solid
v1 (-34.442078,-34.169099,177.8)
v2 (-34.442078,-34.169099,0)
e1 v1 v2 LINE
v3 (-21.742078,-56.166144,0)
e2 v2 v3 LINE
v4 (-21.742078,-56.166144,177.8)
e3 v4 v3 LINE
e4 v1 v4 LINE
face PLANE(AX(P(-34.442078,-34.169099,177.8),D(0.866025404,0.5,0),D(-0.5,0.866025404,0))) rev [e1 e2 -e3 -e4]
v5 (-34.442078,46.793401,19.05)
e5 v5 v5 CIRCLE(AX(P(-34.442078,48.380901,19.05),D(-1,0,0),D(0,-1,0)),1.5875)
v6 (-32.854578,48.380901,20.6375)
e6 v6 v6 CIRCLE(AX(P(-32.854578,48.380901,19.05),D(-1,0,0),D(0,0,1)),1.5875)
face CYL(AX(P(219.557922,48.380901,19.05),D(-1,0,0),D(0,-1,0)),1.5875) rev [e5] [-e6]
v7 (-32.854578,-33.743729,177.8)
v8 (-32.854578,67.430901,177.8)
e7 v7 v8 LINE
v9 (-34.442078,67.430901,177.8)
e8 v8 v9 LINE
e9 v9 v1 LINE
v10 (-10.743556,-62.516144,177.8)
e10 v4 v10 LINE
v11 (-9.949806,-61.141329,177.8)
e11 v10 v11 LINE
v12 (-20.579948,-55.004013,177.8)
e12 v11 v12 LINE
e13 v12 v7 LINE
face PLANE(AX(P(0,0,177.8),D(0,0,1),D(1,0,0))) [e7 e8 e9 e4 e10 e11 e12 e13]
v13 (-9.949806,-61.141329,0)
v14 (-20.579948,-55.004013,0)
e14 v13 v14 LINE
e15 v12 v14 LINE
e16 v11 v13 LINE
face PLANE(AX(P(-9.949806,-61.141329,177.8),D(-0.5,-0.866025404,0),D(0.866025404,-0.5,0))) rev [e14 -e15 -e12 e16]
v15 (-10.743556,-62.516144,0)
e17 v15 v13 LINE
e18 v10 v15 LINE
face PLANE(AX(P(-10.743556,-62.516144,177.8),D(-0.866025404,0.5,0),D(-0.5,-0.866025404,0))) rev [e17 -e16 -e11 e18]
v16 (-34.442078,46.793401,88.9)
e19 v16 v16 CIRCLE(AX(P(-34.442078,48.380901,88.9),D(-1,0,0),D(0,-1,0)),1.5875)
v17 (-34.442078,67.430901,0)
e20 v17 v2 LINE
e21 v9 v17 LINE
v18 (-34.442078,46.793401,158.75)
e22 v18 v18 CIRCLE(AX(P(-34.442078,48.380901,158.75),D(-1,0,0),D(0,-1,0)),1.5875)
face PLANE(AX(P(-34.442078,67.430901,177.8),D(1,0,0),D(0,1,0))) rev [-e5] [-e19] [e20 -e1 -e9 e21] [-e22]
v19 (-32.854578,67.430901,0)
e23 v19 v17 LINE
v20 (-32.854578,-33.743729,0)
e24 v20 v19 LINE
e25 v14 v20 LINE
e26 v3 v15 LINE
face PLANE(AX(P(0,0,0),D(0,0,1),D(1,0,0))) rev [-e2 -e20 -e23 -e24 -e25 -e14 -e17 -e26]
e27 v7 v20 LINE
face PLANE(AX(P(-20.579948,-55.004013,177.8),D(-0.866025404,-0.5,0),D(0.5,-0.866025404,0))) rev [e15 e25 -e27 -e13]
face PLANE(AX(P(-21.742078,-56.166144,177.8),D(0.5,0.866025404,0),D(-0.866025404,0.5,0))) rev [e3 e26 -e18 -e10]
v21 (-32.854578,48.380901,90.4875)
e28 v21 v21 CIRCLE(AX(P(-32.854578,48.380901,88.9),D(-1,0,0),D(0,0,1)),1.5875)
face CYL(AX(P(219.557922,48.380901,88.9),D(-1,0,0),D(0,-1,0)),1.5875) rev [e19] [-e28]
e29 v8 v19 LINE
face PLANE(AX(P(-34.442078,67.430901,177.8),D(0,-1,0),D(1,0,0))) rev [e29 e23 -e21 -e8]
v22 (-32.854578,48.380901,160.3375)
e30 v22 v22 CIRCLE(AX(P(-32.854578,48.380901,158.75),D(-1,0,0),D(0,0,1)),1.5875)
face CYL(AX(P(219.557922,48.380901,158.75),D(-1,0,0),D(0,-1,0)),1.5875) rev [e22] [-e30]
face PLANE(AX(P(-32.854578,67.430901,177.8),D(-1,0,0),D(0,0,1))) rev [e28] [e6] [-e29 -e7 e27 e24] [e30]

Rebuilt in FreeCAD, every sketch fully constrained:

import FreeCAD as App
import Part
import Sketcher
from FreeCAD import Vector
Q = App.Units.Quantity

doc = App.newDocument("Part")
body = doc.addObject("PartDesign::Body", "Body")

sketch1 = body.newObject("Sketcher::SketchObject", "Sketch")
sketch1.AttachmentSupport = (doc.getObject("XY_Plane"), [""])
sketch1.MapMode = "FlatFace"
sketch1.addGeometry([
    Part.LineSegment(Vector(-34.4, -34.2, 0), Vector(-21.7, -56.2, 0)),
    Part.LineSegment(Vector(-21.7, -56.2, 0), Vector(-10.7, -62.5, 0)),
    Part.LineSegment(Vector(-10.7, -62.5, 0), Vector(-9.9, -61.1, 0)),
    Part.LineSegment(Vector(-9.9, -61.1, 0), Vector(-20.6, -55, 0)),
    Part.LineSegment(Vector(-20.6, -55, 0), Vector(-32.9, -33.7, 0)),
    Part.LineSegment(Vector(-32.9, -33.7, 0), Vector(-32.9, 67.4, 0)),
    Part.LineSegment(Vector(-32.9, 67.4, 0), Vector(-34.4, 67.4, 0)),
    Part.LineSegment(Vector(-34.4, 67.4, 0), Vector(-34.4, -34.2, 0)),
], False)
sketch1.addConstraint([
    Sketcher.Constraint("Coincident", 0, 2, 1, 1),
    Sketcher.Constraint("Coincident", 1, 2, 2, 1),
    Sketcher.Constraint("Coincident", 2, 2, 3, 1),
    Sketcher.Constraint("Coincident", 3, 2, 4, 1),
    Sketcher.Constraint("Coincident", 4, 2, 5, 1),
    Sketcher.Constraint("Coincident", 5, 2, 6, 1),
    Sketcher.Constraint("Coincident", 6, 2, 7, 1),
    Sketcher.Constraint("Coincident", 7, 2, 0, 1),
    Sketcher.Constraint("Vertical", 5),
    Sketcher.Constraint("Horizontal", 6),
    Sketcher.Constraint("Vertical", 7),
    Sketcher.Constraint("Perpendicular", 1, 2),
    Sketcher.Constraint("Perpendicular", 2, 3),
    Sketcher.Constraint("Parallel", 0, 4),
    Sketcher.Constraint("DistanceY", 7, 2, 7, 1, Q("4 in")),
    Sketcher.Constraint("Distance", 0, Q("1 in")),
    Sketcher.Constraint("Angle", 0, Q("-60 deg")),
    Sketcher.Constraint("Angle", 1, Q("-30 deg")),
    Sketcher.Constraint("Distance", 1, Q("0.5 in")),
    Sketcher.Constraint("DistanceX", 6, 2, 6, 1, Q("0.0625 in")),
    Sketcher.Constraint("Distance", 2, Q("0.0625 in")),
    Sketcher.Constraint("DistanceY", 5, 1, 5, 2, Q("101.174631 mm")),
    Sketcher.Constraint("DistanceY", -1, 1, 5, 2, Q("67.430901 mm")),
    Sketcher.Constraint("DistanceX", 0, 2, -1, 1, Q("21.742078 mm")),
])
pad1 = body.newObject("PartDesign::Pad", "Pad")
pad1.Profile = sketch1
pad1.Length = Q("7 in")

sketch2 = body.newObject("Sketcher::SketchObject", "Sketch001")
sketch2.AttachmentSupport = (doc.getObject("YZ_Plane"), [""])
sketch2.MapMode = "FlatFace"
sketch2.AttachmentOffset = App.Placement(Vector(0, 0, -34.442078), App.Rotation())
sketch2.addGeometry([
    Part.Circle(Vector(48.4, 158.8, 0), Vector(0, 0, 1), 1.6),
    Part.Circle(Vector(48.4, 88.9, 0), Vector(0, 0, 1), 1.6),
    Part.Circle(Vector(48.4, 19.1, 0), Vector(0, 0, 1), 1.6),
], False)
sketch2.addConstraint([
    Sketcher.Constraint("Equal", 0, 1),
    Sketcher.Constraint("Equal", 1, 2),
    Sketcher.Constraint("Vertical", 0, 3, 1, 3),
    Sketcher.Constraint("Vertical", 1, 3, 2, 3),
    Sketcher.Constraint("Diameter", 0, Q("0.125 in")),
    Sketcher.Constraint("DistanceY", -1, 1, 1, 3, Q("3.5 in")),
    Sketcher.Constraint("DistanceY", 2, 3, 0, 3, Q("5.5 in")),
    Sketcher.Constraint("DistanceY", -1, 1, 0, 3, Q("6.25 in")),
    Sketcher.Constraint("DistanceX", -1, 1, 0, 3, Q("48.380901 mm")),
])
pocket1 = body.newObject("PartDesign::Pocket", "Pocket")
pocket1.Profile = sketch2
pocket1.Length = Q("10 in")
pocket1.Reversed = True

doc.recompute()
